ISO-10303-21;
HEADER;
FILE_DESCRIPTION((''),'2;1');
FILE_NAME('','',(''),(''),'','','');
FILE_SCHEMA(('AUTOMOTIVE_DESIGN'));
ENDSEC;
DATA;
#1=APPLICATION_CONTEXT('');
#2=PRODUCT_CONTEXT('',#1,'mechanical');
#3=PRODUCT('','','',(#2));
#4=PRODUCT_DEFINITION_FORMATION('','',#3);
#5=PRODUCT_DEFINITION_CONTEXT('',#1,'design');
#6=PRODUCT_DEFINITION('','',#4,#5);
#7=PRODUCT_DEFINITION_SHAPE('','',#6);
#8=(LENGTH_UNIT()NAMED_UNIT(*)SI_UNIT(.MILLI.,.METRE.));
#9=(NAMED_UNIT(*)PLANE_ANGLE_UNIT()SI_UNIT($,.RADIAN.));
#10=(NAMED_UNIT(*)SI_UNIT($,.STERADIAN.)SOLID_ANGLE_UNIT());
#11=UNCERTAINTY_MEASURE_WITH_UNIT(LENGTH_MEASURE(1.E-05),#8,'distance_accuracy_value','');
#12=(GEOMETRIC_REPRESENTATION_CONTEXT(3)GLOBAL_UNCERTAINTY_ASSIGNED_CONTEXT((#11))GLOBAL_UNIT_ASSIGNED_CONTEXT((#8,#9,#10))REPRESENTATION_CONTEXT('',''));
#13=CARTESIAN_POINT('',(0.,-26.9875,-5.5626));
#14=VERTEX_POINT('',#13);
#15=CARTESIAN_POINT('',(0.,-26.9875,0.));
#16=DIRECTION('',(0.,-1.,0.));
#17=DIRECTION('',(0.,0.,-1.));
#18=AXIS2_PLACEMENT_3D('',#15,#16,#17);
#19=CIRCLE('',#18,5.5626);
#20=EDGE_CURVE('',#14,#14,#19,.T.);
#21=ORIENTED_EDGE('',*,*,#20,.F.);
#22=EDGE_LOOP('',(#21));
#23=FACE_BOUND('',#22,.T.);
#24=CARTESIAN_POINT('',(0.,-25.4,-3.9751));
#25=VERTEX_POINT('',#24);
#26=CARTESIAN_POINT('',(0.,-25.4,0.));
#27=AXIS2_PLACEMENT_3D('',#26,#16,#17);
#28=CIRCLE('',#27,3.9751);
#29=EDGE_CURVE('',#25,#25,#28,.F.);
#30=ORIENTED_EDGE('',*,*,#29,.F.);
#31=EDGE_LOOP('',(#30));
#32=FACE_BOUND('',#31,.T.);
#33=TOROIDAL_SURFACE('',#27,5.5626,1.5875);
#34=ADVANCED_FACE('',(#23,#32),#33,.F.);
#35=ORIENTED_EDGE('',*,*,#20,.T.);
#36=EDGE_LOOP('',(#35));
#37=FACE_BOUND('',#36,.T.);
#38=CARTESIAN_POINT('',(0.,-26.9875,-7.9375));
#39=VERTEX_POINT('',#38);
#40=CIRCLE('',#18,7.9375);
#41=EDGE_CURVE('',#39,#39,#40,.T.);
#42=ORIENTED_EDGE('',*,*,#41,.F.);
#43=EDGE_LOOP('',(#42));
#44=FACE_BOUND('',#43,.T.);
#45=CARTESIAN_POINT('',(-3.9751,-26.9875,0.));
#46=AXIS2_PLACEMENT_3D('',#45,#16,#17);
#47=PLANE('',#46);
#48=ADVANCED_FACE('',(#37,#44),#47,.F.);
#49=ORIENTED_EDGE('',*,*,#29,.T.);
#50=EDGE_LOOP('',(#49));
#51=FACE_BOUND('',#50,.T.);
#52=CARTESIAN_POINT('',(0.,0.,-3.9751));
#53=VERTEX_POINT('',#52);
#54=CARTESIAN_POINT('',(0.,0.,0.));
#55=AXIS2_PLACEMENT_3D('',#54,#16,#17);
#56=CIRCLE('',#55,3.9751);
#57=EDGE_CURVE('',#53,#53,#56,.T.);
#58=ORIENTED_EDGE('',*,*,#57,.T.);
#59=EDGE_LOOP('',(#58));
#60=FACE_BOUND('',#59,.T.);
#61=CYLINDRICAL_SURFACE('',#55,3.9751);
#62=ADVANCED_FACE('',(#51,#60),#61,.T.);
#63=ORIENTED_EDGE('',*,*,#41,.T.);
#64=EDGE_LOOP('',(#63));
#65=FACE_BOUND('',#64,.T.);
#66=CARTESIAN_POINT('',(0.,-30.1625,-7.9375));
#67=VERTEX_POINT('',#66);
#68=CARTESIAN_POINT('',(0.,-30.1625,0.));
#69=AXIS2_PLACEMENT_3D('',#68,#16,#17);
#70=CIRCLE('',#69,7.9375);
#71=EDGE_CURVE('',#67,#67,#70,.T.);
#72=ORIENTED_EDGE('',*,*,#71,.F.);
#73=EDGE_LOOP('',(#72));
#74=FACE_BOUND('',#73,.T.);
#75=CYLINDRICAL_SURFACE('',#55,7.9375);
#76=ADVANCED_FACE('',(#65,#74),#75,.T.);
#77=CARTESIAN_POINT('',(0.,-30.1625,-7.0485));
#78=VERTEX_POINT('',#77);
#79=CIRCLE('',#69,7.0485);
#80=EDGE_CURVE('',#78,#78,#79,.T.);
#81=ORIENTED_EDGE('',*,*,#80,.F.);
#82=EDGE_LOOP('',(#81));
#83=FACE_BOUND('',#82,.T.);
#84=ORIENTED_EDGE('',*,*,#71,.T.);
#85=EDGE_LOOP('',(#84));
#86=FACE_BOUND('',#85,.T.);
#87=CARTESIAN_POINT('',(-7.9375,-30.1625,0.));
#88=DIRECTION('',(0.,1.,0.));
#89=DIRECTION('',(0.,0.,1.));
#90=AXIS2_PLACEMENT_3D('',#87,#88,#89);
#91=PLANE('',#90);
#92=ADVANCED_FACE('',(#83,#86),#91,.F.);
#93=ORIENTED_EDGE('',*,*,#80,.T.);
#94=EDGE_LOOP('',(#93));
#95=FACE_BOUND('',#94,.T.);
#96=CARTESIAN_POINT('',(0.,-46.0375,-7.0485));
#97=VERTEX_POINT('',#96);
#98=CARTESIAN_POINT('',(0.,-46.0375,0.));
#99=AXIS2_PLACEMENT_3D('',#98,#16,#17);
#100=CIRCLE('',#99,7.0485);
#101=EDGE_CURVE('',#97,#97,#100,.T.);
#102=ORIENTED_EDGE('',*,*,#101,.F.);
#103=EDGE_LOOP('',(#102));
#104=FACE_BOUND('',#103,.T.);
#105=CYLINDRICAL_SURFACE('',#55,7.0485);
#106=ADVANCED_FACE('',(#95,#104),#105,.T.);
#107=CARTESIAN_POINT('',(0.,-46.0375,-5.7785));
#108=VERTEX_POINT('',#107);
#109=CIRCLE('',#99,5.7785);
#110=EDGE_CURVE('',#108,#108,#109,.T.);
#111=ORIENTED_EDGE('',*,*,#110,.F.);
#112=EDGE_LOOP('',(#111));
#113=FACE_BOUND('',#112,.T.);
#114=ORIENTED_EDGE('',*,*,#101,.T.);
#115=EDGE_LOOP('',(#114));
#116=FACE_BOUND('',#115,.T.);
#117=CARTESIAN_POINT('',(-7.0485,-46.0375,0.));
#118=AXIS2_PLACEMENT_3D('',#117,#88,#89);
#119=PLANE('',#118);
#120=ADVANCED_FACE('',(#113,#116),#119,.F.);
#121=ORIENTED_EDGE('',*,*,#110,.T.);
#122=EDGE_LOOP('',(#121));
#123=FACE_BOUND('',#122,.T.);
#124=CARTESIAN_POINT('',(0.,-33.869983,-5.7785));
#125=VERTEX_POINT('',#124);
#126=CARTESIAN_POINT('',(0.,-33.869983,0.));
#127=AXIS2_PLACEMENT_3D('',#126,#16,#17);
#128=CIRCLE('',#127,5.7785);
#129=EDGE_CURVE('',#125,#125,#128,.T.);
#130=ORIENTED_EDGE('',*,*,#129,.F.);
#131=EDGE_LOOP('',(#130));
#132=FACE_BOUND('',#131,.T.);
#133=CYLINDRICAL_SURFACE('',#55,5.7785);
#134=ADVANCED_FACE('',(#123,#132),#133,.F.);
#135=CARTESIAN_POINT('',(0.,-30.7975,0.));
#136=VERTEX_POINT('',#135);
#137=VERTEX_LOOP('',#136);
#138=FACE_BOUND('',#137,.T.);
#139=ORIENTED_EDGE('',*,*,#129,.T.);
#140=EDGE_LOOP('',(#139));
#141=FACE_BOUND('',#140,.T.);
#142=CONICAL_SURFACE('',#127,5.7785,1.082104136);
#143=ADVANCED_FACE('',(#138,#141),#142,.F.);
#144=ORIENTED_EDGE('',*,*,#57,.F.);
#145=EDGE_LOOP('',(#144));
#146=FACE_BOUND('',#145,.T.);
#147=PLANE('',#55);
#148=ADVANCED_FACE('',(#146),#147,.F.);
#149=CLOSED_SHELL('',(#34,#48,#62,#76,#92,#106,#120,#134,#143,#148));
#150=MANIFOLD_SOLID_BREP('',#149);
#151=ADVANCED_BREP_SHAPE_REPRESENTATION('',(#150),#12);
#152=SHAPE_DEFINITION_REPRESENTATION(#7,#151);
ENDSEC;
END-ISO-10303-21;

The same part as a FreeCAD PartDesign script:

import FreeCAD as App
import Part
import Sketcher
from FreeCAD import Vector
Q = App.Units.Quantity


def edges_at(feature, points):
    """Names of the edges that pass closest to the given points."""
    edges = feature.Shape.Edges
    near = lambda p: min(range(len(edges)), key=lambda i: edges[i].distToShape(Part.Vertex(*p))[0])
    return sorted({f"Edge{near(p) + 1}" for p in points})

doc = App.newDocument("Part")
body = doc.addObject("PartDesign::Body", "Body")

# Sketch on XY plane
sketch1 = doc.addObject("Sketcher::SketchObject", "Sketch")
body.addObject(sketch1)
sketch1.AttachmentSupport = (doc.XY_Plane, [""])
sketch1.MapMode = "FlatFace"
sketch1.addGeometry(Part.LineSegment(Vector(0, 0, 0), Vector(-3.9751, 0, 0)), False)
sketch1.addGeometry(Part.LineSegment(Vector(-3.9751, 0, 0), Vector(-3.9751, -26.9875, 0)), False)
sketch1.addGeometry(Part.LineSegment(Vector(-3.9751, -26.9875, 0), Vector(-7.9375, -26.9875, 0)), False)
sketch1.addGeometry(Part.LineSegment(Vector(-7.9375, -26.9875, 0), Vector(-7.9375, -30.1625, 0)), False)
sketch1.addGeometry(Part.LineSegment(Vector(-7.9375, -30.1625, 0), Vector(-7.0485, -30.1625, 0)), False)
sketch1.addGeometry(Part.LineSegment(Vector(-7.0485, -30.1625, 0), Vector(-7.0485, -46.0375, 0)), False)
sketch1.addGeometry(Part.LineSegment(Vector(-7.0485, -46.0375, 0), Vector(-5.7785, -46.0375, 0)), False)
sketch1.addGeometry(Part.LineSegment(Vector(-5.7785, -46.0375, 0), Vector(-5.7785, -33.869983, 0)), False)
sketch1.addGeometry(Part.LineSegment(Vector(-5.7785, -33.869983, 0), Vector(0, -30.7975, 0)), False)
sketch1.addGeometry(Part.LineSegment(Vector(0, -30.7975, 0), Vector(0, 0, 0)), False)
sketch1.addConstraint(Sketcher.Constraint("Coincident", 0, 2, 1, 1))
sketch1.addConstraint(Sketcher.Constraint("Coincident", 1, 2, 2, 1))
sketch1.addConstraint(Sketcher.Constraint("Coincident", 2, 2, 3, 1))
sketch1.addConstraint(Sketcher.Constraint("Coincident", 3, 2, 4, 1))
sketch1.addConstraint(Sketcher.Constraint("Coincident", 4, 2, 5, 1))
sketch1.addConstraint(Sketcher.Constraint("Coincident", 5, 2, 6, 1))
sketch1.addConstraint(Sketcher.Constraint("Coincident", 6, 2, 7, 1))
sketch1.addConstraint(Sketcher.Constraint("Coincident", 7, 2, 8, 1))
sketch1.addConstraint(Sketcher.Constraint("Coincident", 8, 2, 9, 1))
sketch1.addConstraint(Sketcher.Constraint("Coincident", 9, 2, 0, 1))
sketch1.addConstraint(Sketcher.Constraint("Horizontal", 0))
sketch1.addConstraint(Sketcher.Constraint("Vertical", 1))
sketch1.addConstraint(Sketcher.Constraint("Horizontal", 2))
sketch1.addConstraint(Sketcher.Constraint("Vertical", 3))
sketch1.addConstraint(Sketcher.Constraint("Horizontal", 4))
sketch1.addConstraint(Sketcher.Constraint("Vertical", 5))
sketch1.addConstraint(Sketcher.Constraint("Horizontal", 6))
sketch1.addConstraint(Sketcher.Constraint("Vertical", 7))
sketch1.addConstraint(Sketcher.Constraint("Vertical", 9))
sketch1.addConstraint(Sketcher.Constraint("Coincident", 9, 2, -1, 1))
sketch1.addConstraint(Sketcher.Constraint("Angle", 8, Q("28 deg")))
sketch1.addConstraint(Sketcher.Constraint("DistanceX", 6, 1, 6, 2, Q("0.05 in")))
sketch1.addConstraint(Sketcher.Constraint("DistanceX", 2, 2, 2, 1, Q("0.156 in")))
sketch1.addConstraint(Sketcher.Constraint("DistanceX", 4, 1, 4, 2, Q("0.035 in")))
sketch1.addConstraint(Sketcher.Constraint("DistanceY", 1, 2, 1, 1, Q("1.0625 in")))
sketch1.addConstraint(Sketcher.Constraint("DistanceY", 3, 2, 3, 1, Q("0.125 in")))
sketch1.addConstraint(Sketcher.Constraint("DistanceY", 5, 2, 5, 1, Q("0.625 in")))
sketch1.addConstraint(Sketcher.Constraint("DistanceY", 8, 2, 1, 2, Q("0.15 in")))
sketch1.addConstraint(Sketcher.Constraint("DistanceX", 0, 2, 0, 1, Q("0.1565 in")))
revolution = doc.addObject("PartDesign::Revolution", "Revolution")
body.addObject(revolution)
revolution.Profile = sketch1
revolution.ReferenceAxis = (sketch1, ["V_Axis"])
revolution.Angle = 360
doc.recompute()

fillet = doc.addObject("PartDesign::Fillet", "Fillet")
body.addObject(fillet)
fillet.Base = (revolution, edges_at(revolution, [(3.975, -26.988, 0)]))
fillet.Radius = Q("0.0625 in")

doc.recompute()
